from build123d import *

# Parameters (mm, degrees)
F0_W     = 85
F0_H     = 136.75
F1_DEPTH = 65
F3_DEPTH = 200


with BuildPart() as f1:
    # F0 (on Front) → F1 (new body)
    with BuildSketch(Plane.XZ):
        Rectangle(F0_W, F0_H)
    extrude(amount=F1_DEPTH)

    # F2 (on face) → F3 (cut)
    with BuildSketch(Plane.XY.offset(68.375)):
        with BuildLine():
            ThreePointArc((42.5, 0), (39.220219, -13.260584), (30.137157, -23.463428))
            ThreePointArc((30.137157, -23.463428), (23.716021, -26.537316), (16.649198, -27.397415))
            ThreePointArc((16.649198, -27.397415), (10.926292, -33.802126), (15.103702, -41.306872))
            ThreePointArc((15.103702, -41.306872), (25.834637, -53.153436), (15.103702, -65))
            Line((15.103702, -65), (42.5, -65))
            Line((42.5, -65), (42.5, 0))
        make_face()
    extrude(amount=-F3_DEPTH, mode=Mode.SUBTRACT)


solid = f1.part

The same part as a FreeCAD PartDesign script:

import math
import FreeCAD as App
import Part
import Sketcher
Q = App.Units.Quantity


def add_polygon(sketch, points):
    """Adds a closed chain of lines whose ends are joined by coincident constraints."""
    first, n = sketch.GeometryCount, len(points)
    for a, b in zip(points, points[1:] + points[:1]):
        sketch.addGeometry(Part.LineSegment(App.Vector(*a, 0), App.Vector(*b, 0)), False)
    for i in range(n):
        sketch.addConstraint(Sketcher.Constraint("Coincident", first + i, 2, first + (i + 1) % n, 1))

doc = App.newDocument("Part")
body = doc.addObject("PartDesign::Body", "Body")

sketch1 = body.newObject("Sketcher::SketchObject", "Sketch")
sketch1.AttachmentSupport = (doc.getObject("XZ_Plane"), [""])
sketch1.MapMode = "FlatFace"
add_polygon(sketch1, [(-42, 68), (-42, -68), (42, -68), (42, 68)])
sketch1.addConstraint([
    Sketcher.Constraint("Vertical", 0),
    Sketcher.Constraint("Horizontal", 1),
    Sketcher.Constraint("Vertical", 2),
    Sketcher.Constraint("Horizontal", 3),
    Sketcher.Constraint("Symmetric", 0, 2, 2, 2, -1, 1),
    Sketcher.Constraint("DistanceX", 1, 1, 1, 2, Q("85 mm")),
    Sketcher.Constraint("DistanceY", 0, 2, 0, 1, Q("136.75 mm")),
])
pad1 = body.newObject("PartDesign::Pad", "Pad")
pad1.Profile = sketch1
pad1.Length = 65

sketch2 = body.newObject("Sketcher::SketchObject", "Sketch001")
sketch2.AttachmentSupport = (doc.getObject("XY_Plane"), [""])
sketch2.MapMode = "FlatFace"
sketch2.AttachmentOffset = App.Placement(App.Vector(0, 0, 68.375), App.Rotation())
sketch2.addGeometry([
    Part.ArcOfCircle(Part.Circle(App.Vector(14, 0, 0), App.Vector(0, 0, 1), 28), math.radians(-56), math.radians(0)),
    Part.ArcOfCircle(Part.Circle(App.Vector(18, -5, 0), App.Vector(0, 0, 1), 22), math.radians(-92), math.radians(-55)),
    Part.ArcOfCircle(Part.Circle(App.Vector(18, -35, 0), App.Vector(0, 0, 1), 7), math.radians(103), math.radians(245)),
    Part.ArcOfCircle(Part.Circle(App.Vector(14, -53, 0), App.Vector(0, 0, 1), 12), math.radians(-84), math.radians(84)),
    Part.LineSegment(App.Vector(15, -65, 0), App.Vector(42, -65, 0)),
    Part.LineSegment(App.Vector(42, -65, 0), App.Vector(42, 0, 0)),
], False)
sketch2.addConstraint([
    Sketcher.Constraint("Coincident", 0, 1, 1, 2),
    Sketcher.Constraint("Coincident", 1, 1, 2, 1),
    Sketcher.Constraint("Coincident", 2, 2, 3, 2),
    Sketcher.Constraint("Coincident", 3, 1, 4, 1),
    Sketcher.Constraint("Coincident", 4, 2, 5, 1),
    Sketcher.Constraint("Tangent", 5, 2, 0, 2),
    Sketcher.Constraint("Horizontal", 4),
    Sketcher.Constraint("Vertical", 5),
    Sketcher.Constraint("PointOnObject", 0, 3, -1),
    Sketcher.Constraint("Vertical", 2, 2, 3, 1),
    Sketcher.Constraint("DistanceY", 5, 1, 5, 2, Q("65 mm")),
    Sketcher.Constraint("DistanceX", -1, 1, 4, 2, Q("42.5 mm")),
    Sketcher.Constraint("Radius", 2, Q("7.405901 mm")),
    Sketcher.Constraint("Radius", 0, Q("28.447031 mm")),
    Sketcher.Constraint("DistanceX", 4, 1, 4, 2, Q("27.396298 mm")),
    Sketcher.Constraint("Radius", 1, Q("21.977065 mm")),
    Sketcher.Constraint("Radius", 3, Q("11.904557 mm")),
    Sketcher.Constraint("DistanceX", 1, 1, 2, 3, Q("1.637699 mm")),
    Sketcher.Constraint("DistanceY", 2, 2, 2, 3, Q("6.686901 mm")),
    Sketcher.Constraint("DistanceY", 2, 3, -1, 1, Q("34.619971 mm")),
    Sketcher.Constraint("DistanceY", 0, 1, -1, 1, Q("23.463428 mm")),
])
pocket1 = body.newObject("PartDesign::Pocket", "Pocket")
pocket1.Profile = sketch2
pocket1.Length = 200

doc.recompute()
